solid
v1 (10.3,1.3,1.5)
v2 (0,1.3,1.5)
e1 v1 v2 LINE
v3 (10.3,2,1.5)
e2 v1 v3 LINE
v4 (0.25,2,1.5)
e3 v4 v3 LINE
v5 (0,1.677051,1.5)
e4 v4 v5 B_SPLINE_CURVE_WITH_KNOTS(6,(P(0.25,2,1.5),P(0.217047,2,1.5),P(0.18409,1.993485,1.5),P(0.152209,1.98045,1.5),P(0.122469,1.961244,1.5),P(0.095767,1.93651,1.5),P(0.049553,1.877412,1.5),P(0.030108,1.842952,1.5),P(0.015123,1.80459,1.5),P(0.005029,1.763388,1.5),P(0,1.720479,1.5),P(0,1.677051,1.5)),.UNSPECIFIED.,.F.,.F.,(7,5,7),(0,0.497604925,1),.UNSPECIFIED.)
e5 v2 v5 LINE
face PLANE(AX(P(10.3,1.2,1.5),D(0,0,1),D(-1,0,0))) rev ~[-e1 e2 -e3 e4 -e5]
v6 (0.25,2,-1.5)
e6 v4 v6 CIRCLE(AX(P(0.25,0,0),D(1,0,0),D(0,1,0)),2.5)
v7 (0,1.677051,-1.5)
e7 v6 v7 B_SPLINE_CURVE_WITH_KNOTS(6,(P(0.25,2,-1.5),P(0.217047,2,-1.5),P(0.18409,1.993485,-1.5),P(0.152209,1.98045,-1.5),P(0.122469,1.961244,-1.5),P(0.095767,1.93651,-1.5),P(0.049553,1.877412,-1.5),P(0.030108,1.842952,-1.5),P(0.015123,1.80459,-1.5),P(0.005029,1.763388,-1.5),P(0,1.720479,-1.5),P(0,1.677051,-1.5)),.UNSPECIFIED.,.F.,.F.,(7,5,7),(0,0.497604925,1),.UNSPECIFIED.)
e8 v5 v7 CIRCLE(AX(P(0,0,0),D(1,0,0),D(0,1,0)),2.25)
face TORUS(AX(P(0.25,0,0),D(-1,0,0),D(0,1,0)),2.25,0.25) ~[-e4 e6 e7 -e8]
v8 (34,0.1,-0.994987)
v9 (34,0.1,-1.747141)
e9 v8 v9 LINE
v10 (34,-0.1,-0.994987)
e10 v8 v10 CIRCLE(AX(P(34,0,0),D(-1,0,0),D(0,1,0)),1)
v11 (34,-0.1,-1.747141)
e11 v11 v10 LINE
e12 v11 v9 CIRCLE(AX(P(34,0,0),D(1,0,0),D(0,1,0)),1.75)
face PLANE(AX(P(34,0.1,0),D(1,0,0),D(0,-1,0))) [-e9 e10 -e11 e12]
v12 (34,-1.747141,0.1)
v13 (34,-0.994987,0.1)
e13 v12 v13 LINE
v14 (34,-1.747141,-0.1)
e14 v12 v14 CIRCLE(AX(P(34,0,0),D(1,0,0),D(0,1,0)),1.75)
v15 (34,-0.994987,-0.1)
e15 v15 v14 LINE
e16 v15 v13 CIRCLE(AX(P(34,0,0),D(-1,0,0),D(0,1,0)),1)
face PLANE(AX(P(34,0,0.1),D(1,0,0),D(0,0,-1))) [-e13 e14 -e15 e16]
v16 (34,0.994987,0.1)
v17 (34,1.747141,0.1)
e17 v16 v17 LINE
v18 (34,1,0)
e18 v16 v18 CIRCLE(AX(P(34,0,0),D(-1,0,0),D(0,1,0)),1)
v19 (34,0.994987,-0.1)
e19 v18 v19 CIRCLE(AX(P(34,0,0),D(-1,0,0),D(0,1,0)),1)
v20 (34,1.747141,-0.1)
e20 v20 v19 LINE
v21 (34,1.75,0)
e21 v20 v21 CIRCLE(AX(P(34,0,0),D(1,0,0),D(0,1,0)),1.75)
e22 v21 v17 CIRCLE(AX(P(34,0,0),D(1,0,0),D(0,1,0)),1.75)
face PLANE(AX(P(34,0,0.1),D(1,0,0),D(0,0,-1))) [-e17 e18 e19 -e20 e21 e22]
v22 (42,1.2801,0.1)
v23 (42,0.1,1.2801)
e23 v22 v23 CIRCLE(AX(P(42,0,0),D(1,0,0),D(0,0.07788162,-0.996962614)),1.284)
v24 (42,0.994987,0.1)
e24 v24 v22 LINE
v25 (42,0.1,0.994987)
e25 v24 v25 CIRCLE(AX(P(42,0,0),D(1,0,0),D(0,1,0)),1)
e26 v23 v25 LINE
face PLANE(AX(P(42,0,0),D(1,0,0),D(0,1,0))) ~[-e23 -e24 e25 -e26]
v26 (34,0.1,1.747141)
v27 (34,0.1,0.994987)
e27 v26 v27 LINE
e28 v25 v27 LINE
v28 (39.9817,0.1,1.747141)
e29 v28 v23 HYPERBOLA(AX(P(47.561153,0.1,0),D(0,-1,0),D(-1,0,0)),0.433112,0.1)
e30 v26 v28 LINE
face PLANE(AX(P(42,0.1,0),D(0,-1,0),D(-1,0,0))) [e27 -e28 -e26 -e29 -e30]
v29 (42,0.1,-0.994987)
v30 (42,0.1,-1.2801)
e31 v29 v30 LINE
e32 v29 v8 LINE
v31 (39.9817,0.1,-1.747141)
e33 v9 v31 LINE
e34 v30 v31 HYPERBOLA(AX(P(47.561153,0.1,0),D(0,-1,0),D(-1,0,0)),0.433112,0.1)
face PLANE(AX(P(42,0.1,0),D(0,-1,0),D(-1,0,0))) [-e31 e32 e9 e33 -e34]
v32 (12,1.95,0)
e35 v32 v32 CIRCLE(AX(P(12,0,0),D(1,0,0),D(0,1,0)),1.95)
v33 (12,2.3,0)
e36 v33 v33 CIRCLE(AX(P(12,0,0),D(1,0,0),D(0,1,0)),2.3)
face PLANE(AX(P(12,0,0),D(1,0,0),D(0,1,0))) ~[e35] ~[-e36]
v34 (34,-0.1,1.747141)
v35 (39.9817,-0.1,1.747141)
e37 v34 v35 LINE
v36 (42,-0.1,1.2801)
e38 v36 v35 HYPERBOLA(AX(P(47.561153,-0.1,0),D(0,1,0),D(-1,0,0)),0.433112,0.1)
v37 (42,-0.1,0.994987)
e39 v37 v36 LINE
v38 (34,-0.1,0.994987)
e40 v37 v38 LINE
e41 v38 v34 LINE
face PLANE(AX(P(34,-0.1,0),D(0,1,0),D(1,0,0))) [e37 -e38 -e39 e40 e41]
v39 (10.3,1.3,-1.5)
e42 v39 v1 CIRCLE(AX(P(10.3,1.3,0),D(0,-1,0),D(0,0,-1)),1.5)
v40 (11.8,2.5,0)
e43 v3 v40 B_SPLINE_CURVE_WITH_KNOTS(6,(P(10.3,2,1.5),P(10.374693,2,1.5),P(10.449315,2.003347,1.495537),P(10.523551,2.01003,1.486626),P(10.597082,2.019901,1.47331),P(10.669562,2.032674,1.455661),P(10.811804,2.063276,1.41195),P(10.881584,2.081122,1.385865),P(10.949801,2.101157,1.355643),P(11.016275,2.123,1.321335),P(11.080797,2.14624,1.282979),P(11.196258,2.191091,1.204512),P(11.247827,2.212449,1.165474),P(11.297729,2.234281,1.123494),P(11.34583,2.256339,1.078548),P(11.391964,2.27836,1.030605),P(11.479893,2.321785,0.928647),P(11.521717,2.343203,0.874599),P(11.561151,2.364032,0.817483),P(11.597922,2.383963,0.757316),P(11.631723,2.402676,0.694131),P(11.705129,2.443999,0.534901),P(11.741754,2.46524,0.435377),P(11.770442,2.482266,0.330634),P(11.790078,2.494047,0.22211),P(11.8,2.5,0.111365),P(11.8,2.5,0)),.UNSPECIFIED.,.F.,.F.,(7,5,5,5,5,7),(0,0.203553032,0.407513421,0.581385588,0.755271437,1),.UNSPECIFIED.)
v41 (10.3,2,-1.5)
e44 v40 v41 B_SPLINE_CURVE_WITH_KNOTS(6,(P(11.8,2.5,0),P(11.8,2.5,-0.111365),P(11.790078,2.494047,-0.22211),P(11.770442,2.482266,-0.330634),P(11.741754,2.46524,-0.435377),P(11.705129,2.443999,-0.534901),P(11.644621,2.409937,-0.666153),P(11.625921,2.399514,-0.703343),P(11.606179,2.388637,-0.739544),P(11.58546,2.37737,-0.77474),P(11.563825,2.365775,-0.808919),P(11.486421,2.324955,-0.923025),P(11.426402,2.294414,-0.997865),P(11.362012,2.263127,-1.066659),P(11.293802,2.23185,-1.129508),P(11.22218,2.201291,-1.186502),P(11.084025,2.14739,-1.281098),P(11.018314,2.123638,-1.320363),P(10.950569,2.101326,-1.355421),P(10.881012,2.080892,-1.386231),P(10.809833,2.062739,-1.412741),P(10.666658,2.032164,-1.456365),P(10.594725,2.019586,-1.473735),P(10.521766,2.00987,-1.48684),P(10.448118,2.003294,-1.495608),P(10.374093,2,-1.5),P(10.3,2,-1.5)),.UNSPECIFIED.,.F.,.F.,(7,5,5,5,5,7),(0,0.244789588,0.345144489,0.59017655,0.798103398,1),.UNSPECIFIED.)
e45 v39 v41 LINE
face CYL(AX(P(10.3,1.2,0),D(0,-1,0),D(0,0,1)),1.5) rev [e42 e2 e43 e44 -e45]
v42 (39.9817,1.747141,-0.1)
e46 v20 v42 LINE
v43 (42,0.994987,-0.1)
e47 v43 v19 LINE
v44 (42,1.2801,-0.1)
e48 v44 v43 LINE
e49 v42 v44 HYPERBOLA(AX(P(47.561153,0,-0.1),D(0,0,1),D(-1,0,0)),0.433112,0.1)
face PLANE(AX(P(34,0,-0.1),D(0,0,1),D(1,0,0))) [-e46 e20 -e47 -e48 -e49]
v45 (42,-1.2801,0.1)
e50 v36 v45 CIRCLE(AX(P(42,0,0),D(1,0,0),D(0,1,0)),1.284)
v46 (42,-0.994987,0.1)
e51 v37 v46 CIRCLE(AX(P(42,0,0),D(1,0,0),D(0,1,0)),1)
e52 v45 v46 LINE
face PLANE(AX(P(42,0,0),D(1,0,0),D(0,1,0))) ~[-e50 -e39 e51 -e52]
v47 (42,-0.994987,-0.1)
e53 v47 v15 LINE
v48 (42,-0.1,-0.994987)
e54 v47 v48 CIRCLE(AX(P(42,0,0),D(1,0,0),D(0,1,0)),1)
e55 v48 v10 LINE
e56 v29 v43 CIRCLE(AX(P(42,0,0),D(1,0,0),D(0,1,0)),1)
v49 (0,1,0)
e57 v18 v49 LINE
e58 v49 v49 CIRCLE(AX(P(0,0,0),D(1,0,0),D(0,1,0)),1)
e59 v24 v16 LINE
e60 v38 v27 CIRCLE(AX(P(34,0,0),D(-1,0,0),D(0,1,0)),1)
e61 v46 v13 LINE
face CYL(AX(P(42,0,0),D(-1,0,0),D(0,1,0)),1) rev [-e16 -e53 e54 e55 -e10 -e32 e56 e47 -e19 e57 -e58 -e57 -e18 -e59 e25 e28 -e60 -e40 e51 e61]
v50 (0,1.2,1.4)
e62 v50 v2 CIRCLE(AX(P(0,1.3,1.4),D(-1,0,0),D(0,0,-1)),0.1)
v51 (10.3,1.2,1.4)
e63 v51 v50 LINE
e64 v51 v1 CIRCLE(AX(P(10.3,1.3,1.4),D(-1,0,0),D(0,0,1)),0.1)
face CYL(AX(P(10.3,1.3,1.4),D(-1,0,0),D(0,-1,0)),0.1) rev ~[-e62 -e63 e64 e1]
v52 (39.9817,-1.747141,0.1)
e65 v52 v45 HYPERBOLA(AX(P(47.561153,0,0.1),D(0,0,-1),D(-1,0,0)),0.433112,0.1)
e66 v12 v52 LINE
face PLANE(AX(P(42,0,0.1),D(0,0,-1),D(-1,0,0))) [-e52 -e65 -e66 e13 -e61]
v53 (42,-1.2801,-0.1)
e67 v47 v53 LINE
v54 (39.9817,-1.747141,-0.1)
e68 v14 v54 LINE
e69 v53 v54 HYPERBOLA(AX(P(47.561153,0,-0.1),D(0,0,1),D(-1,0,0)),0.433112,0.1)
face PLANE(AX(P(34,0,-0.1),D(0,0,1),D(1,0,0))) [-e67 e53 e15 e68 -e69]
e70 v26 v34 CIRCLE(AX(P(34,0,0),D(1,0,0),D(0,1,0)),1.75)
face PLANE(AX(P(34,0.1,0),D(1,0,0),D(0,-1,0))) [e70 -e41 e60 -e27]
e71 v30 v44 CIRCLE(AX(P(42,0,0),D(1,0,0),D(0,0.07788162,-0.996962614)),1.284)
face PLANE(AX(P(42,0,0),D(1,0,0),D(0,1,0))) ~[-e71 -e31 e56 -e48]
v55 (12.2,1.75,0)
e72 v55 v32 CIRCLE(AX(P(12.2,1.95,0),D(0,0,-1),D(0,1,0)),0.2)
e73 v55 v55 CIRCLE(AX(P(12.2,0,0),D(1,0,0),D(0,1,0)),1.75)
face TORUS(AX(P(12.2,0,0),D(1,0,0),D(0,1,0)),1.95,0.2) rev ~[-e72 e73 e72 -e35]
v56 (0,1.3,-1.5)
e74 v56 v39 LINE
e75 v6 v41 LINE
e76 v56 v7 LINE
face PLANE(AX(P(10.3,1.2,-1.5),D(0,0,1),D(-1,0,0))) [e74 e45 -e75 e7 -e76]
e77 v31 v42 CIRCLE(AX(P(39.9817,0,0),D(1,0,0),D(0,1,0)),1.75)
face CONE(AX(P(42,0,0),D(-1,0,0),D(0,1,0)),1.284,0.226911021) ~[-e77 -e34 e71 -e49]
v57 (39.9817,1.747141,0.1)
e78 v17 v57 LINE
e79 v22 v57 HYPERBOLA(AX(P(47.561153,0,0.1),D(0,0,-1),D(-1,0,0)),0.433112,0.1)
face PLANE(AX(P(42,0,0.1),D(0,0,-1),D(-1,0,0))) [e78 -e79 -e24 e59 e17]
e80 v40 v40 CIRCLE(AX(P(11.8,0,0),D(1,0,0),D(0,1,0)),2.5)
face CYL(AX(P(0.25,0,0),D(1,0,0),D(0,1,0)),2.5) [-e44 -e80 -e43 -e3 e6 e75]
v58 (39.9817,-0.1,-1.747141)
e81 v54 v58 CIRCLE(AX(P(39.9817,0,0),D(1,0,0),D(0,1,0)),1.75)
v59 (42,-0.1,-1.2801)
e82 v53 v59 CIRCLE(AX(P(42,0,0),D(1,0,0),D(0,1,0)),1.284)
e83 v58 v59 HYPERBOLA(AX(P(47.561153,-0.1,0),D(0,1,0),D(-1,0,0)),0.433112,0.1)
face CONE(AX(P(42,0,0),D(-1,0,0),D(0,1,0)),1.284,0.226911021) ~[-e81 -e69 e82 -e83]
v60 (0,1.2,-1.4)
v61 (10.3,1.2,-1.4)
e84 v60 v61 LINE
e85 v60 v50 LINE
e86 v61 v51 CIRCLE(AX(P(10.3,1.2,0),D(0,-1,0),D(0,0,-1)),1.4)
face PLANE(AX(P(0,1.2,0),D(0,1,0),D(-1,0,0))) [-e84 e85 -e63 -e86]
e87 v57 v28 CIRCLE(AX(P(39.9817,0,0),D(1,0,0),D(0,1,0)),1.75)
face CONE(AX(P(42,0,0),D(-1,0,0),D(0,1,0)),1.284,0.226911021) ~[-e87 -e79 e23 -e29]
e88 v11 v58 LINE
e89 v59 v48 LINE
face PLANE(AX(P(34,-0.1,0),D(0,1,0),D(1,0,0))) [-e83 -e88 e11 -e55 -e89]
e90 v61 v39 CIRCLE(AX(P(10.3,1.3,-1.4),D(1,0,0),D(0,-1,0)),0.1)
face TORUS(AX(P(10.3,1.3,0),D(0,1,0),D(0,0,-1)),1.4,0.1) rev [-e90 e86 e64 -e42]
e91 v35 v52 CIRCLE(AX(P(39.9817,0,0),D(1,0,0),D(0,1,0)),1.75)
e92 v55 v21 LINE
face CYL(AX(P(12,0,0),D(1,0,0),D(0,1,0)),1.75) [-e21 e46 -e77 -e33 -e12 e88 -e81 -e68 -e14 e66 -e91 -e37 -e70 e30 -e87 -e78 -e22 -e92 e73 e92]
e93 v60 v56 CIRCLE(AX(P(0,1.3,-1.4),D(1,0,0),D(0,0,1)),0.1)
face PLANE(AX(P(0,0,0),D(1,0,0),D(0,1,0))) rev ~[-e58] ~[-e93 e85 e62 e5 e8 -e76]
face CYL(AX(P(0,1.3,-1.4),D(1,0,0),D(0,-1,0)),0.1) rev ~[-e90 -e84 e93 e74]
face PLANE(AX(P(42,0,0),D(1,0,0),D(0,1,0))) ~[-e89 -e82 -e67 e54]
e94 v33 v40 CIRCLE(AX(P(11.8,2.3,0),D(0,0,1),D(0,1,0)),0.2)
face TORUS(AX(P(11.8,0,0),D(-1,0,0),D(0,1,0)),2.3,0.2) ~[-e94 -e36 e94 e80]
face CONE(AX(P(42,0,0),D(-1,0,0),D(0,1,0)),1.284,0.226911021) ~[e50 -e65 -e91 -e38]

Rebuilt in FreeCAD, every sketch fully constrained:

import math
import FreeCAD as App
import Part
import Sketcher

V = App.Vector
Q = App.Units.Quantity


def edges_at(feature, points):
    """Names of the edges that pass closest to the given points."""
    edges = feature.Shape.Edges
    near = lambda p: min(range(len(edges)), key=lambda i: edges[i].distToShape(Part.Vertex(*p))[0])
    return sorted({f"Edge{near(p) + 1}" for p in points})


def add_polygon(sketch, points):
    """Adds a closed chain of lines whose ends are joined by coincident constraints."""
    first, n = sketch.GeometryCount, len(points)
    for a, b in zip(points, points[1:] + points[:1]):
        sketch.addGeometry(Part.LineSegment(App.Vector(*a, 0), App.Vector(*b, 0)), False)
    for i in range(n):
        sketch.addConstraint(Sketcher.Constraint("Coincident", first + i, 2, first + (i + 1) % n, 1))

doc = App.newDocument("Part")
body = doc.addObject("PartDesign::Body", "Body")

# Sketch on XY plane
sketch1 = body.newObject("Sketcher::SketchObject", "Sketch")
sketch1.AttachmentSupport = (doc.getObject("XY_Plane"), [""])
sketch1.MapMode = "FlatFace"
sketch1.addGeometry(Part.LineSegment(V(0, 1, 0), V(42, 1, 0)), False)
sketch1.addGeometry(Part.LineSegment(V(42, 1, 0), V(42, 1.28, 0)), False)
sketch1.addGeometry(Part.LineSegment(V(42, 1.28, 0), V(39.98, 1.75, 0)), False)
sketch1.addGeometry(Part.LineSegment(V(39.98, 1.75, 0), V(12, 1.75, 0)), False)
sketch1.addGeometry(Part.LineSegment(V(12, 1.75, 0), V(12, 2.5, 0)), False)
sketch1.addGeometry(Part.LineSegment(V(12, 2.5, 0), V(0.25, 2.5, 0)), False)
sketch1.addGeometry(Part.ArcOfCircle(Part.Circle(V(0.25, 2.25, 0), V(0, 0, 1), 0.25), math.radians(90), math.radians(180)), False)
sketch1.addGeometry(Part.LineSegment(V(0, 2.25, 0), V(0, 1, 0)), False)
sketch1.addConstraint(Sketcher.Constraint("Coincident", 0, 2, 1, 1))
sketch1.addConstraint(Sketcher.Constraint("Coincident", 1, 2, 2, 1))
sketch1.addConstraint(Sketcher.Constraint("Coincident", 2, 2, 3, 1))
sketch1.addConstraint(Sketcher.Constraint("Coincident", 3, 2, 4, 1))
sketch1.addConstraint(Sketcher.Constraint("Coincident", 4, 2, 5, 1))
sketch1.addConstraint(Sketcher.Constraint("Tangent", 5, 2, 6, 1))
sketch1.addConstraint(Sketcher.Constraint("Tangent", 6, 2, 7, 1))
sketch1.addConstraint(Sketcher.Constraint("Coincident", 7, 2, 0, 1))
sketch1.addConstraint(Sketcher.Constraint("Horizontal", 0))
sketch1.addConstraint(Sketcher.Constraint("Vertical", 1))
sketch1.addConstraint(Sketcher.Constraint("Horizontal", 3))
sketch1.addConstraint(Sketcher.Constraint("Vertical", 4))
sketch1.addConstraint(Sketcher.Constraint("Horizontal", 5))
sketch1.addConstraint(Sketcher.Constraint("Vertical", 7))
sketch1.addConstraint(Sketcher.Constraint("PointOnObject", 6, 2, -2))
sketch1.addConstraint(Sketcher.Constraint("DistanceX", 0, 1, 0, 2, 42.0))
sketch1.addConstraint(Sketcher.Constraint("Radius", 6, 0.25))
sketch1.addConstraint(Sketcher.Constraint("Angle", 2, Q("166.999 deg")))
sketch1.addConstraint(Sketcher.Constraint("DistanceY", -1, 1, 0, 2, 1.0))
sketch1.addConstraint(Sketcher.Constraint("DistanceX", -1, 1, 3, 2, 12.0))
sketch1.addConstraint(Sketcher.Constraint("DistanceY", 4, 1, 4, 2, 0.75))
sketch1.addConstraint(Sketcher.Constraint("DistanceY", 7, 2, 7, 1, 1.25))
sketch1.addConstraint(Sketcher.Constraint("DistanceY", 1, 1, 1, 2, 0.284))
revolution = body.newObject("PartDesign::Revolution", "Revolution")
revolution.Profile = sketch1
revolution.ReferenceAxis = (sketch1, ["H_Axis"])
revolution.Angle = 360

# Sketch on XZ plane
sketch2 = body.newObject("Sketcher::SketchObject", "Sketch001")
sketch2.AttachmentSupport = (doc.getObject("XZ_Plane"), [""])
sketch2.MapMode = "FlatFace"
sketch2.AttachmentOffset = App.Placement(V(0, 0, -1.2), App.Rotation())
sketch2.addGeometry(Part.LineSegment(V(0, 1.5, 0), V(10.3, 1.5, 0)), False)
sketch2.addGeometry(Part.ArcOfCircle(Part.Circle(V(10.3, 0, 0), V(0, 0, 1), 1.5), math.radians(-90), math.radians(90)), False)
sketch2.addGeometry(Part.LineSegment(V(10.3, -1.5, 0), V(0, -1.5, 0)), False)
sketch2.addGeometry(Part.LineSegment(V(0, -1.5, 0), V(0, 1.5, 0)), False)
sketch2.addConstraint(Sketcher.Constraint("Tangent", 0, 2, 1, 2))
sketch2.addConstraint(Sketcher.Constraint("Tangent", 1, 1, 2, 1))
sketch2.addConstraint(Sketcher.Constraint("Coincident", 2, 2, 3, 1))
sketch2.addConstraint(Sketcher.Constraint("Coincident", 3, 2, 0, 1))
sketch2.addConstraint(Sketcher.Constraint("Horizontal", 0))
sketch2.addConstraint(Sketcher.Constraint("Horizontal", 2))
sketch2.addConstraint(Sketcher.Constraint("Vertical", 3))
sketch2.addConstraint(Sketcher.Constraint("Symmetric", 2, 2, 3, 2, -1, 1))
sketch2.addConstraint(Sketcher.Constraint("Radius", 1, 1.5))
sketch2.addConstraint(Sketcher.Constraint("DistanceX", 0, 1, 0, 2, 10.3))
pocket1 = body.newObject("PartDesign::Pocket", "Pocket")
pocket1.Profile = sketch2
pocket1.Type = "ThroughAll"

# Sketch on XY plane
sketch3 = body.newObject("Sketcher::SketchObject", "Sketch002")
sketch3.AttachmentSupport = (doc.getObject("XY_Plane"), [""])
sketch3.MapMode = "FlatFace"
add_polygon(sketch3, [(34, 0.1), (34, -0.1), (42, -0.1), (42, 0.1)])  # lines 0-3
sketch3.addConstraint(Sketcher.Constraint("Vertical", 0))
sketch3.addConstraint(Sketcher.Constraint("Horizontal", 1))
sketch3.addConstraint(Sketcher.Constraint("Vertical", 2))
sketch3.addConstraint(Sketcher.Constraint("Horizontal", 3))
sketch3.addConstraint(Sketcher.Constraint("DistanceX", 1, 1, 1, 2, 8.0))
sketch3.addConstraint(Sketcher.Constraint("DistanceY", 0, 2, 0, 1, 0.2))
sketch3.addConstraint(Sketcher.Constraint("DistanceX", -1, 1, 0, 2, 34.0))
sketch3.addConstraint(Sketcher.Constraint("DistanceY", 0, 2, -1, 1, 0.1))
pocket2 = body.newObject("PartDesign::Pocket", "Pocket001")
pocket2.Profile = sketch3
pocket2.Type = "ThroughAll"
pocket2.Midplane = True
doc.recompute()

polarpattern = body.newObject("PartDesign::PolarPattern", "PolarPattern")
polarpattern.Originals = [pocket2]
polarpattern.Axis = (doc.getObject("X_Axis"), [""])
polarpattern.Angle = 360
polarpattern.Occurrences = 4
body.Tip = polarpattern
doc.recompute()

fillet = body.newObject("PartDesign::Fillet", "Fillet")
fillet.Base = (polarpattern, edges_at(polarpattern, [(12, -1.75, 0), (12, -2.5, 0)]))
fillet.Radius = 0.2
doc.recompute()

fillet2 = body.newObject("PartDesign::Fillet", "Fillet001")
fillet2.Base = (fillet, edges_at(fillet, [(11.8, 1.2, 0), (5.15, 1.2, 1.5), (5.15, 1.2, -1.5)]))
fillet2.Radius = 0.1

doc.recompute()
